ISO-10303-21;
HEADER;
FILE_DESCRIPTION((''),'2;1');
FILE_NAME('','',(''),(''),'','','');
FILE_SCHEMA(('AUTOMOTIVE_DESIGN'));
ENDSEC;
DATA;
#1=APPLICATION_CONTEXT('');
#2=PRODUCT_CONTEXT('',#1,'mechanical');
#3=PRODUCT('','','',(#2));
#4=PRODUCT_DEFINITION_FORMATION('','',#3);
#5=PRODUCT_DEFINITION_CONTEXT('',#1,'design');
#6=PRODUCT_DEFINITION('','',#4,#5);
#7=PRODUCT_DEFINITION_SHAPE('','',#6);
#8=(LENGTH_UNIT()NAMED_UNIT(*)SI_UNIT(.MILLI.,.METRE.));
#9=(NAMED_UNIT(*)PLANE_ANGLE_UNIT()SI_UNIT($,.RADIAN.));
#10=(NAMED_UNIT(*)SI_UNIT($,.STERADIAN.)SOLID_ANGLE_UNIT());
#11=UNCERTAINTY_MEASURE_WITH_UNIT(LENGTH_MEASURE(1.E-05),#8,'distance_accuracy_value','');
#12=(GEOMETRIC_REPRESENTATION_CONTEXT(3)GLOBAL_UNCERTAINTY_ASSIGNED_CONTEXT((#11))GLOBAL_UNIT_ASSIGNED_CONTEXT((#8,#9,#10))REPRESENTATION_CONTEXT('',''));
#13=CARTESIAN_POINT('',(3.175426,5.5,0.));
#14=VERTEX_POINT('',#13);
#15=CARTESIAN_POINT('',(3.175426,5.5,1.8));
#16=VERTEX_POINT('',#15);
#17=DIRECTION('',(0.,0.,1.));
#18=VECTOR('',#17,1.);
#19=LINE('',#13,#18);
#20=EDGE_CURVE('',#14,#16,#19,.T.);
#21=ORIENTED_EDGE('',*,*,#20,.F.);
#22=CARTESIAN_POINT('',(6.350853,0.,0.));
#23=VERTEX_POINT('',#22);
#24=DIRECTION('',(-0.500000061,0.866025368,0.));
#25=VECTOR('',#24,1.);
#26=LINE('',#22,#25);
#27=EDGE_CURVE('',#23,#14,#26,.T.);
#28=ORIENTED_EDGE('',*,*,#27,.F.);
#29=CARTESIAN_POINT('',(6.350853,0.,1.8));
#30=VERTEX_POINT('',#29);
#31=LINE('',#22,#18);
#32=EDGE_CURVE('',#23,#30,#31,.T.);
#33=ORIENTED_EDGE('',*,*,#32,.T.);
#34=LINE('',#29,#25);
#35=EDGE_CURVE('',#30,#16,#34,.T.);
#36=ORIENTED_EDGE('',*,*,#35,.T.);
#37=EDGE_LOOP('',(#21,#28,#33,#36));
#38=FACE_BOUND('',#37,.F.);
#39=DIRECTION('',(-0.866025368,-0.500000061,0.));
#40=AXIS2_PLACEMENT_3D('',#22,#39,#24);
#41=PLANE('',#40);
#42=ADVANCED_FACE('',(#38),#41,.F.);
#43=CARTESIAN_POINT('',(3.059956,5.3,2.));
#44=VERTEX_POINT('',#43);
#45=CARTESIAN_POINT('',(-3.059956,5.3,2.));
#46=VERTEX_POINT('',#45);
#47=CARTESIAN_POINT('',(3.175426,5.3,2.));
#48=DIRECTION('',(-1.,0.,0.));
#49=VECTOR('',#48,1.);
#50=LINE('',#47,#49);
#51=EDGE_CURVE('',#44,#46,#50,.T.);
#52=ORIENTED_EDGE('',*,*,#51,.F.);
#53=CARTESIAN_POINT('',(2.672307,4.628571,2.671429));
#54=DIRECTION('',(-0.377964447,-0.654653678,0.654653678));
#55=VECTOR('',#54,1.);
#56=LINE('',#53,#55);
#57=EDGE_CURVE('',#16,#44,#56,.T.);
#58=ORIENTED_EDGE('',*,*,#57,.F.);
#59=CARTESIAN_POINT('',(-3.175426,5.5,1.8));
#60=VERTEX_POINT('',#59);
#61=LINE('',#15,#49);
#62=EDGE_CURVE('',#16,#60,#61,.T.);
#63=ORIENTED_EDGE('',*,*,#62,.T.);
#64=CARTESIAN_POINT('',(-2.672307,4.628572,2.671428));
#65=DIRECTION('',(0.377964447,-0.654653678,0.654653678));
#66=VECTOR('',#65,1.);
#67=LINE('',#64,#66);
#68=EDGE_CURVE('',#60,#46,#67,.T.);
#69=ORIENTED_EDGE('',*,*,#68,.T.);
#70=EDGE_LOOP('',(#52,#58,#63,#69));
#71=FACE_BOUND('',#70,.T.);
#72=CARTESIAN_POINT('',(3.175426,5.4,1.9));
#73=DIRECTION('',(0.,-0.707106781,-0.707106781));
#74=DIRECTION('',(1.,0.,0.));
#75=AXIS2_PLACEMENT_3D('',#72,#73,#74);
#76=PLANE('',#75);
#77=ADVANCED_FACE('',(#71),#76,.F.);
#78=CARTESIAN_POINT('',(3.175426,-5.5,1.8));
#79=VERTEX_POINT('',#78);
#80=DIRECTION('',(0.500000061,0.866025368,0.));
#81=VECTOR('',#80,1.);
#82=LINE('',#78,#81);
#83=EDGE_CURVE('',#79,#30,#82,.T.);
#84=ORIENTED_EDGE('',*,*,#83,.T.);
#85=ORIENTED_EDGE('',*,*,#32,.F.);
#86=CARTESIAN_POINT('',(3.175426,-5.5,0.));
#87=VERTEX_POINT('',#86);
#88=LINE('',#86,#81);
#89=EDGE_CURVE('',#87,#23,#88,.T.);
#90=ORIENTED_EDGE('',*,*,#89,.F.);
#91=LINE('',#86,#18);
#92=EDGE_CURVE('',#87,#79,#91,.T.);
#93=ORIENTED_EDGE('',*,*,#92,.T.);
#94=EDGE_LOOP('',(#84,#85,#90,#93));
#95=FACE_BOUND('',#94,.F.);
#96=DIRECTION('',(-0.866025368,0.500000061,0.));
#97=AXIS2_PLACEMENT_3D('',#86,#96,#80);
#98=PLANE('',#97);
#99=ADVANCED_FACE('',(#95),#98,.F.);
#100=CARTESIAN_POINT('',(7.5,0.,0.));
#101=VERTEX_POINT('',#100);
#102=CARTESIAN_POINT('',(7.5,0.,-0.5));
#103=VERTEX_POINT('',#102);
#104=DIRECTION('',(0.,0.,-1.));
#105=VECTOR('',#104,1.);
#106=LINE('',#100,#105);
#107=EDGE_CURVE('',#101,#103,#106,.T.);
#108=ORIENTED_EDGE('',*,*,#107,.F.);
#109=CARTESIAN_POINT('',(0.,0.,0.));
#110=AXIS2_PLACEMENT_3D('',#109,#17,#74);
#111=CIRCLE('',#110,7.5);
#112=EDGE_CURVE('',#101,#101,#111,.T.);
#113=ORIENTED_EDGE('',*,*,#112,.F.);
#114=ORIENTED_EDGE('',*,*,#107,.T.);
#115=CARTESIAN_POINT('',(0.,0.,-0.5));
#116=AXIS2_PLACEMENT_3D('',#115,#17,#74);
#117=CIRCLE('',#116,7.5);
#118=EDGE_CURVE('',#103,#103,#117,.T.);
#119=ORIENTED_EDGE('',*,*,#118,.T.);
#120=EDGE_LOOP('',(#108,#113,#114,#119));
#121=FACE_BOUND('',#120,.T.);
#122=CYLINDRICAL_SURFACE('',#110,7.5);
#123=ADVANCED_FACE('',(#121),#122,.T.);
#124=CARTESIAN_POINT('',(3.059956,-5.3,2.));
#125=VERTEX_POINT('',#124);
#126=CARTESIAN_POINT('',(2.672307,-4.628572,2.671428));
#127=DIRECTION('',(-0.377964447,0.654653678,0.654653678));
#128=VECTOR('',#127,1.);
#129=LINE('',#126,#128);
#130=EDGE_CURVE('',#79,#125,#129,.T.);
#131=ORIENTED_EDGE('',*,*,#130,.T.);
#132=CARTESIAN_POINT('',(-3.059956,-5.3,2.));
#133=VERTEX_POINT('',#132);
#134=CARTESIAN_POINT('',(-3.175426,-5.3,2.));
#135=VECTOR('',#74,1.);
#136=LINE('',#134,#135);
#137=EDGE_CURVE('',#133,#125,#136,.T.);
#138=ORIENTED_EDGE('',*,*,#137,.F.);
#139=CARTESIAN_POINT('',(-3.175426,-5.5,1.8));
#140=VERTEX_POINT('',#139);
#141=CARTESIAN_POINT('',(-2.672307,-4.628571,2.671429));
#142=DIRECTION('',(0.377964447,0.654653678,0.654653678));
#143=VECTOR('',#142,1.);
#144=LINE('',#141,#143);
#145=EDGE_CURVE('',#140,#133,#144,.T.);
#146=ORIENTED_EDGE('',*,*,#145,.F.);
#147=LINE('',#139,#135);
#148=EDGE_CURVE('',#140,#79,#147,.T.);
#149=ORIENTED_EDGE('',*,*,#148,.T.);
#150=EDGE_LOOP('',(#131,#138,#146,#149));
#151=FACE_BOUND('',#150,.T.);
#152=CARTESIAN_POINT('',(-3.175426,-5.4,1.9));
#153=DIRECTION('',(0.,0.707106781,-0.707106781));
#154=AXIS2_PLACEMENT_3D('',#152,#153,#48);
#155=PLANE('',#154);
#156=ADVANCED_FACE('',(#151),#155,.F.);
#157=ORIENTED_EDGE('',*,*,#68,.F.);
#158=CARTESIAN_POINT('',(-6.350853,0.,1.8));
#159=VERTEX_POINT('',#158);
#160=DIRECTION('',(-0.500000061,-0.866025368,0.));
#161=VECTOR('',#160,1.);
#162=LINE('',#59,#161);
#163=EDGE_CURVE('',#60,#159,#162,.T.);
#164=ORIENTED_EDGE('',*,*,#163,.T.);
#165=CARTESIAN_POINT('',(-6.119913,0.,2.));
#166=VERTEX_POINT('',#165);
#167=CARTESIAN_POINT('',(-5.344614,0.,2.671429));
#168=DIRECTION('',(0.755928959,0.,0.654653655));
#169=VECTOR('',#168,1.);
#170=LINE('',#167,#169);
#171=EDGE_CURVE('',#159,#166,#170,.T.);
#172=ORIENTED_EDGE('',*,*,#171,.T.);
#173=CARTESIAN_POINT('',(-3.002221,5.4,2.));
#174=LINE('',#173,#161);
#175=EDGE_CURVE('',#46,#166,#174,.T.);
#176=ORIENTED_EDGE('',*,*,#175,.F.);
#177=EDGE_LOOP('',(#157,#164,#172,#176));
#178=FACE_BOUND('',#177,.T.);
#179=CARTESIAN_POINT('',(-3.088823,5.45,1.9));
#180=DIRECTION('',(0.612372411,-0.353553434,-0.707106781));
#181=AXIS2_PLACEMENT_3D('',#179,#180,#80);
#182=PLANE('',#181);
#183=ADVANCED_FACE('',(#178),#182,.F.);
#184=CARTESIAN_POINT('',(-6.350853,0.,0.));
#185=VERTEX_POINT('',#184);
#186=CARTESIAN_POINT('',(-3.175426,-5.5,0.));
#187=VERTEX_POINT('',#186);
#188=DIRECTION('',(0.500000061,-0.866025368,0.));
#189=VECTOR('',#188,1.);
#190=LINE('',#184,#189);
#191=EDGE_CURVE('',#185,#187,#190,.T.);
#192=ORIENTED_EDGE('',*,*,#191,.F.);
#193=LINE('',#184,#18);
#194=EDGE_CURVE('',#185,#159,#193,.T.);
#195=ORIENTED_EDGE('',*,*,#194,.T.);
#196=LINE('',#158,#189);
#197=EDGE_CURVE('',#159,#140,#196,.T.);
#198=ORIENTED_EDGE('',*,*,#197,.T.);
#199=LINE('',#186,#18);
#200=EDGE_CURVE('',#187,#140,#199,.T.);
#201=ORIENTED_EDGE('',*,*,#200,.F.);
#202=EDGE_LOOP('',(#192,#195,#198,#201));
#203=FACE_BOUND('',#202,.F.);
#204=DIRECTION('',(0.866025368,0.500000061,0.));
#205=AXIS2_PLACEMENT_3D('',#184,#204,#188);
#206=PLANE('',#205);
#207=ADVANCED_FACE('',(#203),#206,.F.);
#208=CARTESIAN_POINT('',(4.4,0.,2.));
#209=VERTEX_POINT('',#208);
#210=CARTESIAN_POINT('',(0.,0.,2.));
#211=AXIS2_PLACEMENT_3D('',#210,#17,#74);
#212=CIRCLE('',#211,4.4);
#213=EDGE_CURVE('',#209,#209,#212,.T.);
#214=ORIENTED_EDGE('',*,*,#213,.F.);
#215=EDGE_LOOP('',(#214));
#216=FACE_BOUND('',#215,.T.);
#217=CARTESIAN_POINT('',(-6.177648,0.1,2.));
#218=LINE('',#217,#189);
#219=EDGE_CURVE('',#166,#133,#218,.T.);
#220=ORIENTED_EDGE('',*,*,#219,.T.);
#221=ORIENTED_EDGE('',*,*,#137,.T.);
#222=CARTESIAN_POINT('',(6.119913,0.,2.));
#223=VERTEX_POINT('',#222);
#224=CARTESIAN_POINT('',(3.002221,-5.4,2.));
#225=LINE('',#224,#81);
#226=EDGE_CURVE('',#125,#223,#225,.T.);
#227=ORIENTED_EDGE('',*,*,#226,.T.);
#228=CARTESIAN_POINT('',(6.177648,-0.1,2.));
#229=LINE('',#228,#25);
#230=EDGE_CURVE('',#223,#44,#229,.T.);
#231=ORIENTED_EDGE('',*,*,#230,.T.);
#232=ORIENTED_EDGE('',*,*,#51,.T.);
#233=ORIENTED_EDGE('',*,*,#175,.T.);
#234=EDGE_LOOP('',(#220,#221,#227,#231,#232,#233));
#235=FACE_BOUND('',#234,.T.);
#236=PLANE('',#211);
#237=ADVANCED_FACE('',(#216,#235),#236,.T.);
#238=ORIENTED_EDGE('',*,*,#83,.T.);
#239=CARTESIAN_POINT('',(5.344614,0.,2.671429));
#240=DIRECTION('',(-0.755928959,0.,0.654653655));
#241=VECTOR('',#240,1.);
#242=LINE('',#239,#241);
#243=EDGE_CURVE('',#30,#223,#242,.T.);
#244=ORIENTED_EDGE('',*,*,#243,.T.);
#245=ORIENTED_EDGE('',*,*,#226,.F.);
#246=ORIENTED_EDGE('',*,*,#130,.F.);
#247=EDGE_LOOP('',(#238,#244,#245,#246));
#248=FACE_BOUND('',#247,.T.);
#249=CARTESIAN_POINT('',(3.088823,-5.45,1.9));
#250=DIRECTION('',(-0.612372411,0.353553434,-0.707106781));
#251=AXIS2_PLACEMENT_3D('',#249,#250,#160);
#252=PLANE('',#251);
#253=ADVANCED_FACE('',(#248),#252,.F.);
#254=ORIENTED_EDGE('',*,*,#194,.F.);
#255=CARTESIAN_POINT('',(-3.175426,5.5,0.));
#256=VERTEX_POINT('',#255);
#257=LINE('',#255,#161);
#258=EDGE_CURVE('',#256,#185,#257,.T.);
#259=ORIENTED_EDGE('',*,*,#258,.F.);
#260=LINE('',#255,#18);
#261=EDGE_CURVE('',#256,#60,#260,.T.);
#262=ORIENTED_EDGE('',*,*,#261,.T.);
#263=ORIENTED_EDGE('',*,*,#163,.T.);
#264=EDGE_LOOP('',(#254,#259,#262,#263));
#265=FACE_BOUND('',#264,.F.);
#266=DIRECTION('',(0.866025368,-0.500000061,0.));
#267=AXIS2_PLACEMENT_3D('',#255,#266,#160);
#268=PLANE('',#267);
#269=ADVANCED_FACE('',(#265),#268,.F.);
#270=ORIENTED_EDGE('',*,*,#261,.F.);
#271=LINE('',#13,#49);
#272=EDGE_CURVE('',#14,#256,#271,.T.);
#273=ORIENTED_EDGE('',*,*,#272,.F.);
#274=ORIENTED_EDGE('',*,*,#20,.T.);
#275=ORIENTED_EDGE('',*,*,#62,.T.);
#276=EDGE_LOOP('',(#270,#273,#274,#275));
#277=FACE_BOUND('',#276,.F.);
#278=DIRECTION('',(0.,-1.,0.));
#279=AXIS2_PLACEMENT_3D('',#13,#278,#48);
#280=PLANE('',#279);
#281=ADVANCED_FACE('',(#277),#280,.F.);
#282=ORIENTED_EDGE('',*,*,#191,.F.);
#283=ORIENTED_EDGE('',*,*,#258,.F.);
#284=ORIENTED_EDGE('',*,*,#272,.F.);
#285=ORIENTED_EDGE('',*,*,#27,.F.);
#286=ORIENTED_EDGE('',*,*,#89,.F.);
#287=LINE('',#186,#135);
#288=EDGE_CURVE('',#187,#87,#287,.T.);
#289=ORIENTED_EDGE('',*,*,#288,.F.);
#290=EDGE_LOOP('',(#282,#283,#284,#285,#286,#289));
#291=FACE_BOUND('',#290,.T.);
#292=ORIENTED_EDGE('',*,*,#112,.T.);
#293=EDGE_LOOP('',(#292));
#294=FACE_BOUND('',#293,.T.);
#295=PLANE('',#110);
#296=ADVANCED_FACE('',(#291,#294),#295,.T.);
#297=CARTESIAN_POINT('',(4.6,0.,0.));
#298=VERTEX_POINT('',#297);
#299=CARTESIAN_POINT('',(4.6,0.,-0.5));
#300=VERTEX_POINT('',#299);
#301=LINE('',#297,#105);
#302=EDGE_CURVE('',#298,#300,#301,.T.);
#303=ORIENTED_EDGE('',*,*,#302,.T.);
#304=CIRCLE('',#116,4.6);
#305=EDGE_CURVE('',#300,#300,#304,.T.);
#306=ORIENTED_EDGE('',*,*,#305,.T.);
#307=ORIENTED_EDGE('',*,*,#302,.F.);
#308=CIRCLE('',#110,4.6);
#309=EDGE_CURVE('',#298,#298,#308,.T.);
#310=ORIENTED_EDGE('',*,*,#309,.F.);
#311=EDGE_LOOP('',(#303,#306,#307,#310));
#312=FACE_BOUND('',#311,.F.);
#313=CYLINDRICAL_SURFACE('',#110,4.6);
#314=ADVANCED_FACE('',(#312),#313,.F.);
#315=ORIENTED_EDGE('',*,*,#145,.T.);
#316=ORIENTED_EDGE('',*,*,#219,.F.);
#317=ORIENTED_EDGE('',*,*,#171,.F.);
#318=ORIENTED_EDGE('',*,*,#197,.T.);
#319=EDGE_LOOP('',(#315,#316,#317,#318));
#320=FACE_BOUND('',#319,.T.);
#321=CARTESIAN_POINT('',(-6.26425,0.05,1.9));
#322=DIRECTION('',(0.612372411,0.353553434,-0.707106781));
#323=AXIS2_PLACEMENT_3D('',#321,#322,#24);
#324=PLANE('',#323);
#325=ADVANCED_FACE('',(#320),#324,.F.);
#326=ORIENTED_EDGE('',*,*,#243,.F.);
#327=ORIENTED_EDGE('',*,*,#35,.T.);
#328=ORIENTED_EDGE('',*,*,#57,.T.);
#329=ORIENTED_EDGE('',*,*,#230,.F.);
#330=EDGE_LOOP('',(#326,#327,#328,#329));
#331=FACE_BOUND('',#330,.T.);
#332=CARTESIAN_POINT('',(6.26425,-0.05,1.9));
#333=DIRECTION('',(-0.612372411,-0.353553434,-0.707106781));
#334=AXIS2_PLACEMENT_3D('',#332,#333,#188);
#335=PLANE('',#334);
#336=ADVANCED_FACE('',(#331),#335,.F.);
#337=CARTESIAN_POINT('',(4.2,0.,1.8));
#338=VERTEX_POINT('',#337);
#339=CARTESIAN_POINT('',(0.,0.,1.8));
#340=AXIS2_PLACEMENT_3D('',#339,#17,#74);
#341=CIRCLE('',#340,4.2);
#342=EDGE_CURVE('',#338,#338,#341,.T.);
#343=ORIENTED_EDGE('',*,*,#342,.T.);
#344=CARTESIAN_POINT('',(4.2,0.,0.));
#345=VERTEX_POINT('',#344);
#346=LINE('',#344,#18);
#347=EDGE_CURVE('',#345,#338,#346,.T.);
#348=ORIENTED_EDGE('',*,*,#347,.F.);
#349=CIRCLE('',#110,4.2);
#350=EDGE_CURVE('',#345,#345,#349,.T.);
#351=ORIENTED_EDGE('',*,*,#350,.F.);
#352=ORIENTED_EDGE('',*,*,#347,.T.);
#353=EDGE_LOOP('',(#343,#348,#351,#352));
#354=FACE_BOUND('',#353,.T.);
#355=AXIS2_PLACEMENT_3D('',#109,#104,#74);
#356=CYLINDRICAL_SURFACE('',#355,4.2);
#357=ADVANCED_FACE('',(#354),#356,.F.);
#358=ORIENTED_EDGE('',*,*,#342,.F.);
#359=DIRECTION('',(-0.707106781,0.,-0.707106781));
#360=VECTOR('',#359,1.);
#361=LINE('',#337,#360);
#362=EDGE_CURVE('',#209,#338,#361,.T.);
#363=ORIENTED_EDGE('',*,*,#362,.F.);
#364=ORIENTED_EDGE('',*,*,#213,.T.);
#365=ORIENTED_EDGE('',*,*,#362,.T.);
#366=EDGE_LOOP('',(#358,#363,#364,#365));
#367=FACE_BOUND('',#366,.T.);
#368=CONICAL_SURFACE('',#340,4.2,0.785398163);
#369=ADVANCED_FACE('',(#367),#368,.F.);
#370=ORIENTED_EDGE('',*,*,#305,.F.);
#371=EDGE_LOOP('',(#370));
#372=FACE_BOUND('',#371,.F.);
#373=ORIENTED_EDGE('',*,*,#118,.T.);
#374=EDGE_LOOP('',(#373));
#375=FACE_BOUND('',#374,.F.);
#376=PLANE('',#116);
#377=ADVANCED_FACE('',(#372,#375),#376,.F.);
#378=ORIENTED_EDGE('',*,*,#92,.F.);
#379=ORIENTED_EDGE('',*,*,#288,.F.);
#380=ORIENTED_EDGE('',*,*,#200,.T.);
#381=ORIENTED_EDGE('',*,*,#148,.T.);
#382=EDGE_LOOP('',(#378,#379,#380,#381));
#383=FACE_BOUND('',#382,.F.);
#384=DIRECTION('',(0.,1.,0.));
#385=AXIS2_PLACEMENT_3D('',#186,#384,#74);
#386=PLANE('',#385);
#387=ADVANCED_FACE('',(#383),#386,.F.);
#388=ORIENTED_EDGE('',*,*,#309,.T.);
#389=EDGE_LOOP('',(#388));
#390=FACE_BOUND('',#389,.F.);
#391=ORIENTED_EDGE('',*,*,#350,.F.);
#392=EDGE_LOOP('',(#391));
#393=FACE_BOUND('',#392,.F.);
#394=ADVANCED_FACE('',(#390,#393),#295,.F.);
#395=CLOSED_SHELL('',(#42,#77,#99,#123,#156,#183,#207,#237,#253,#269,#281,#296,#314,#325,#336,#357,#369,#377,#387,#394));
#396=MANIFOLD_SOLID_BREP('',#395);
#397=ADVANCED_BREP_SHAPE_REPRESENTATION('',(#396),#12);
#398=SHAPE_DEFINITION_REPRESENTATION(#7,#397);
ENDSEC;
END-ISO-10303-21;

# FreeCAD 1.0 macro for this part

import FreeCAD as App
import Part
import Sketcher

V = App.Vector
Q = App.Units.Quantity


def edges_at(feature, points):
    """Names of the edges that pass closest to the given points."""
    edges = feature.Shape.Edges
    near = lambda p: min(range(len(edges)), key=lambda i: edges[i].distToShape(Part.Vertex(*p))[0])
    return sorted({f"Edge{near(p) + 1}" for p in points})


def add_polygon(sketch, points):
    """Adds a closed chain of lines whose ends are joined by coincident constraints."""
    first, n = sketch.GeometryCount, len(points)
    for a, b in zip(points, points[1:] + points[:1]):
        sketch.addGeometry(Part.LineSegment(App.Vector(*a, 0), App.Vector(*b, 0)), False)
    for i in range(n):
        sketch.addConstraint(Sketcher.Constraint("Coincident", first + i, 2, first + (i + 1) % n, 1))

doc = App.newDocument("Part")
body = doc.addObject("PartDesign::Body", "Body")

sketch1 = body.newObject("Sketcher::SketchObject", "Sketch")
sketch1.AttachmentSupport = (doc.getObject("XY_Plane"), [""])
sketch1.MapMode = "FlatFace"
add_polygon(sketch1, [(6.4, 0), (3.2, 5.5), (-3.2, 5.5), (-6.4, 0), (-3.2, -5.5), (3.2, -5.5)])
sketch1.addGeometry(Part.Circle(V(0, 0, 0), V(0, 0, 1), 4.2), False)
sketch1.addConstraint([
    Sketcher.Constraint("Horizontal", 1),
    Sketcher.Constraint("Horizontal", 4),
    Sketcher.Constraint("Coincident", 6, 3, -1, 1),
    Sketcher.Constraint("Symmetric", 0, 2, 3, 2, -1, 1),
    Sketcher.Constraint("Symmetric", 2, 2, 5, 2, -1, 1),
    Sketcher.Constraint("PointOnObject", 2, 2, -1),
    Sketcher.Constraint("Parallel", 2, 5),
    Sketcher.Constraint("Vertical", 1, 2, 3, 2),
    Sketcher.Constraint("Diameter", 6, 8.4),
    Sketcher.Constraint("Angle", 0, Q("120.000004 deg")),
    Sketcher.Constraint("DistanceY", 3, 2, 1, 2, 11.0),
    Sketcher.Constraint("DistanceX", 1, 2, 1, 1, 6.350852),
])
pad1 = body.newObject("PartDesign::Pad", "Pad")
pad1.Profile = sketch1
pad1.Length = 2

sketch2 = body.newObject("Sketcher::SketchObject", "Sketch001")
sketch2.AttachmentSupport = (doc.getObject("XY_Plane"), [""])
sketch2.MapMode = "FlatFace"
sketch2.addGeometry([
    Part.Circle(V(0, 0, 0), V(0, 0, 1), 7.5),
    Part.Circle(V(0, 0, 0), V(0, 0, 1), 4.6),
], False)
sketch2.addConstraint([
    Sketcher.Constraint("Coincident", 0, 3, -1, 1),
    Sketcher.Constraint("Coincident", 1, 3, -1, 1),
    Sketcher.Constraint("Diameter", 0, 15.0),
    Sketcher.Constraint("Diameter", 1, 9.2),
])
pad2 = body.newObject("PartDesign::Pad", "Pad001")
pad2.Profile = sketch2
pad2.Length = 0.5
pad2.Reversed = True
doc.recompute()

chamfer = body.newObject("PartDesign::Chamfer", "Chamfer")
chamfer.Base = (pad2, edges_at(pad2, [
    (-4.2, 0, 2),
    (-4.763, 2.75, 2),
    (-4.763, -2.75, 2),
    (0, -5.5, 2),
    (4.763, -2.75, 2),
    (4.763, 2.75, 2),
    (0, 5.5, 2),
]))
chamfer.Size = 0.2

doc.recompute()
